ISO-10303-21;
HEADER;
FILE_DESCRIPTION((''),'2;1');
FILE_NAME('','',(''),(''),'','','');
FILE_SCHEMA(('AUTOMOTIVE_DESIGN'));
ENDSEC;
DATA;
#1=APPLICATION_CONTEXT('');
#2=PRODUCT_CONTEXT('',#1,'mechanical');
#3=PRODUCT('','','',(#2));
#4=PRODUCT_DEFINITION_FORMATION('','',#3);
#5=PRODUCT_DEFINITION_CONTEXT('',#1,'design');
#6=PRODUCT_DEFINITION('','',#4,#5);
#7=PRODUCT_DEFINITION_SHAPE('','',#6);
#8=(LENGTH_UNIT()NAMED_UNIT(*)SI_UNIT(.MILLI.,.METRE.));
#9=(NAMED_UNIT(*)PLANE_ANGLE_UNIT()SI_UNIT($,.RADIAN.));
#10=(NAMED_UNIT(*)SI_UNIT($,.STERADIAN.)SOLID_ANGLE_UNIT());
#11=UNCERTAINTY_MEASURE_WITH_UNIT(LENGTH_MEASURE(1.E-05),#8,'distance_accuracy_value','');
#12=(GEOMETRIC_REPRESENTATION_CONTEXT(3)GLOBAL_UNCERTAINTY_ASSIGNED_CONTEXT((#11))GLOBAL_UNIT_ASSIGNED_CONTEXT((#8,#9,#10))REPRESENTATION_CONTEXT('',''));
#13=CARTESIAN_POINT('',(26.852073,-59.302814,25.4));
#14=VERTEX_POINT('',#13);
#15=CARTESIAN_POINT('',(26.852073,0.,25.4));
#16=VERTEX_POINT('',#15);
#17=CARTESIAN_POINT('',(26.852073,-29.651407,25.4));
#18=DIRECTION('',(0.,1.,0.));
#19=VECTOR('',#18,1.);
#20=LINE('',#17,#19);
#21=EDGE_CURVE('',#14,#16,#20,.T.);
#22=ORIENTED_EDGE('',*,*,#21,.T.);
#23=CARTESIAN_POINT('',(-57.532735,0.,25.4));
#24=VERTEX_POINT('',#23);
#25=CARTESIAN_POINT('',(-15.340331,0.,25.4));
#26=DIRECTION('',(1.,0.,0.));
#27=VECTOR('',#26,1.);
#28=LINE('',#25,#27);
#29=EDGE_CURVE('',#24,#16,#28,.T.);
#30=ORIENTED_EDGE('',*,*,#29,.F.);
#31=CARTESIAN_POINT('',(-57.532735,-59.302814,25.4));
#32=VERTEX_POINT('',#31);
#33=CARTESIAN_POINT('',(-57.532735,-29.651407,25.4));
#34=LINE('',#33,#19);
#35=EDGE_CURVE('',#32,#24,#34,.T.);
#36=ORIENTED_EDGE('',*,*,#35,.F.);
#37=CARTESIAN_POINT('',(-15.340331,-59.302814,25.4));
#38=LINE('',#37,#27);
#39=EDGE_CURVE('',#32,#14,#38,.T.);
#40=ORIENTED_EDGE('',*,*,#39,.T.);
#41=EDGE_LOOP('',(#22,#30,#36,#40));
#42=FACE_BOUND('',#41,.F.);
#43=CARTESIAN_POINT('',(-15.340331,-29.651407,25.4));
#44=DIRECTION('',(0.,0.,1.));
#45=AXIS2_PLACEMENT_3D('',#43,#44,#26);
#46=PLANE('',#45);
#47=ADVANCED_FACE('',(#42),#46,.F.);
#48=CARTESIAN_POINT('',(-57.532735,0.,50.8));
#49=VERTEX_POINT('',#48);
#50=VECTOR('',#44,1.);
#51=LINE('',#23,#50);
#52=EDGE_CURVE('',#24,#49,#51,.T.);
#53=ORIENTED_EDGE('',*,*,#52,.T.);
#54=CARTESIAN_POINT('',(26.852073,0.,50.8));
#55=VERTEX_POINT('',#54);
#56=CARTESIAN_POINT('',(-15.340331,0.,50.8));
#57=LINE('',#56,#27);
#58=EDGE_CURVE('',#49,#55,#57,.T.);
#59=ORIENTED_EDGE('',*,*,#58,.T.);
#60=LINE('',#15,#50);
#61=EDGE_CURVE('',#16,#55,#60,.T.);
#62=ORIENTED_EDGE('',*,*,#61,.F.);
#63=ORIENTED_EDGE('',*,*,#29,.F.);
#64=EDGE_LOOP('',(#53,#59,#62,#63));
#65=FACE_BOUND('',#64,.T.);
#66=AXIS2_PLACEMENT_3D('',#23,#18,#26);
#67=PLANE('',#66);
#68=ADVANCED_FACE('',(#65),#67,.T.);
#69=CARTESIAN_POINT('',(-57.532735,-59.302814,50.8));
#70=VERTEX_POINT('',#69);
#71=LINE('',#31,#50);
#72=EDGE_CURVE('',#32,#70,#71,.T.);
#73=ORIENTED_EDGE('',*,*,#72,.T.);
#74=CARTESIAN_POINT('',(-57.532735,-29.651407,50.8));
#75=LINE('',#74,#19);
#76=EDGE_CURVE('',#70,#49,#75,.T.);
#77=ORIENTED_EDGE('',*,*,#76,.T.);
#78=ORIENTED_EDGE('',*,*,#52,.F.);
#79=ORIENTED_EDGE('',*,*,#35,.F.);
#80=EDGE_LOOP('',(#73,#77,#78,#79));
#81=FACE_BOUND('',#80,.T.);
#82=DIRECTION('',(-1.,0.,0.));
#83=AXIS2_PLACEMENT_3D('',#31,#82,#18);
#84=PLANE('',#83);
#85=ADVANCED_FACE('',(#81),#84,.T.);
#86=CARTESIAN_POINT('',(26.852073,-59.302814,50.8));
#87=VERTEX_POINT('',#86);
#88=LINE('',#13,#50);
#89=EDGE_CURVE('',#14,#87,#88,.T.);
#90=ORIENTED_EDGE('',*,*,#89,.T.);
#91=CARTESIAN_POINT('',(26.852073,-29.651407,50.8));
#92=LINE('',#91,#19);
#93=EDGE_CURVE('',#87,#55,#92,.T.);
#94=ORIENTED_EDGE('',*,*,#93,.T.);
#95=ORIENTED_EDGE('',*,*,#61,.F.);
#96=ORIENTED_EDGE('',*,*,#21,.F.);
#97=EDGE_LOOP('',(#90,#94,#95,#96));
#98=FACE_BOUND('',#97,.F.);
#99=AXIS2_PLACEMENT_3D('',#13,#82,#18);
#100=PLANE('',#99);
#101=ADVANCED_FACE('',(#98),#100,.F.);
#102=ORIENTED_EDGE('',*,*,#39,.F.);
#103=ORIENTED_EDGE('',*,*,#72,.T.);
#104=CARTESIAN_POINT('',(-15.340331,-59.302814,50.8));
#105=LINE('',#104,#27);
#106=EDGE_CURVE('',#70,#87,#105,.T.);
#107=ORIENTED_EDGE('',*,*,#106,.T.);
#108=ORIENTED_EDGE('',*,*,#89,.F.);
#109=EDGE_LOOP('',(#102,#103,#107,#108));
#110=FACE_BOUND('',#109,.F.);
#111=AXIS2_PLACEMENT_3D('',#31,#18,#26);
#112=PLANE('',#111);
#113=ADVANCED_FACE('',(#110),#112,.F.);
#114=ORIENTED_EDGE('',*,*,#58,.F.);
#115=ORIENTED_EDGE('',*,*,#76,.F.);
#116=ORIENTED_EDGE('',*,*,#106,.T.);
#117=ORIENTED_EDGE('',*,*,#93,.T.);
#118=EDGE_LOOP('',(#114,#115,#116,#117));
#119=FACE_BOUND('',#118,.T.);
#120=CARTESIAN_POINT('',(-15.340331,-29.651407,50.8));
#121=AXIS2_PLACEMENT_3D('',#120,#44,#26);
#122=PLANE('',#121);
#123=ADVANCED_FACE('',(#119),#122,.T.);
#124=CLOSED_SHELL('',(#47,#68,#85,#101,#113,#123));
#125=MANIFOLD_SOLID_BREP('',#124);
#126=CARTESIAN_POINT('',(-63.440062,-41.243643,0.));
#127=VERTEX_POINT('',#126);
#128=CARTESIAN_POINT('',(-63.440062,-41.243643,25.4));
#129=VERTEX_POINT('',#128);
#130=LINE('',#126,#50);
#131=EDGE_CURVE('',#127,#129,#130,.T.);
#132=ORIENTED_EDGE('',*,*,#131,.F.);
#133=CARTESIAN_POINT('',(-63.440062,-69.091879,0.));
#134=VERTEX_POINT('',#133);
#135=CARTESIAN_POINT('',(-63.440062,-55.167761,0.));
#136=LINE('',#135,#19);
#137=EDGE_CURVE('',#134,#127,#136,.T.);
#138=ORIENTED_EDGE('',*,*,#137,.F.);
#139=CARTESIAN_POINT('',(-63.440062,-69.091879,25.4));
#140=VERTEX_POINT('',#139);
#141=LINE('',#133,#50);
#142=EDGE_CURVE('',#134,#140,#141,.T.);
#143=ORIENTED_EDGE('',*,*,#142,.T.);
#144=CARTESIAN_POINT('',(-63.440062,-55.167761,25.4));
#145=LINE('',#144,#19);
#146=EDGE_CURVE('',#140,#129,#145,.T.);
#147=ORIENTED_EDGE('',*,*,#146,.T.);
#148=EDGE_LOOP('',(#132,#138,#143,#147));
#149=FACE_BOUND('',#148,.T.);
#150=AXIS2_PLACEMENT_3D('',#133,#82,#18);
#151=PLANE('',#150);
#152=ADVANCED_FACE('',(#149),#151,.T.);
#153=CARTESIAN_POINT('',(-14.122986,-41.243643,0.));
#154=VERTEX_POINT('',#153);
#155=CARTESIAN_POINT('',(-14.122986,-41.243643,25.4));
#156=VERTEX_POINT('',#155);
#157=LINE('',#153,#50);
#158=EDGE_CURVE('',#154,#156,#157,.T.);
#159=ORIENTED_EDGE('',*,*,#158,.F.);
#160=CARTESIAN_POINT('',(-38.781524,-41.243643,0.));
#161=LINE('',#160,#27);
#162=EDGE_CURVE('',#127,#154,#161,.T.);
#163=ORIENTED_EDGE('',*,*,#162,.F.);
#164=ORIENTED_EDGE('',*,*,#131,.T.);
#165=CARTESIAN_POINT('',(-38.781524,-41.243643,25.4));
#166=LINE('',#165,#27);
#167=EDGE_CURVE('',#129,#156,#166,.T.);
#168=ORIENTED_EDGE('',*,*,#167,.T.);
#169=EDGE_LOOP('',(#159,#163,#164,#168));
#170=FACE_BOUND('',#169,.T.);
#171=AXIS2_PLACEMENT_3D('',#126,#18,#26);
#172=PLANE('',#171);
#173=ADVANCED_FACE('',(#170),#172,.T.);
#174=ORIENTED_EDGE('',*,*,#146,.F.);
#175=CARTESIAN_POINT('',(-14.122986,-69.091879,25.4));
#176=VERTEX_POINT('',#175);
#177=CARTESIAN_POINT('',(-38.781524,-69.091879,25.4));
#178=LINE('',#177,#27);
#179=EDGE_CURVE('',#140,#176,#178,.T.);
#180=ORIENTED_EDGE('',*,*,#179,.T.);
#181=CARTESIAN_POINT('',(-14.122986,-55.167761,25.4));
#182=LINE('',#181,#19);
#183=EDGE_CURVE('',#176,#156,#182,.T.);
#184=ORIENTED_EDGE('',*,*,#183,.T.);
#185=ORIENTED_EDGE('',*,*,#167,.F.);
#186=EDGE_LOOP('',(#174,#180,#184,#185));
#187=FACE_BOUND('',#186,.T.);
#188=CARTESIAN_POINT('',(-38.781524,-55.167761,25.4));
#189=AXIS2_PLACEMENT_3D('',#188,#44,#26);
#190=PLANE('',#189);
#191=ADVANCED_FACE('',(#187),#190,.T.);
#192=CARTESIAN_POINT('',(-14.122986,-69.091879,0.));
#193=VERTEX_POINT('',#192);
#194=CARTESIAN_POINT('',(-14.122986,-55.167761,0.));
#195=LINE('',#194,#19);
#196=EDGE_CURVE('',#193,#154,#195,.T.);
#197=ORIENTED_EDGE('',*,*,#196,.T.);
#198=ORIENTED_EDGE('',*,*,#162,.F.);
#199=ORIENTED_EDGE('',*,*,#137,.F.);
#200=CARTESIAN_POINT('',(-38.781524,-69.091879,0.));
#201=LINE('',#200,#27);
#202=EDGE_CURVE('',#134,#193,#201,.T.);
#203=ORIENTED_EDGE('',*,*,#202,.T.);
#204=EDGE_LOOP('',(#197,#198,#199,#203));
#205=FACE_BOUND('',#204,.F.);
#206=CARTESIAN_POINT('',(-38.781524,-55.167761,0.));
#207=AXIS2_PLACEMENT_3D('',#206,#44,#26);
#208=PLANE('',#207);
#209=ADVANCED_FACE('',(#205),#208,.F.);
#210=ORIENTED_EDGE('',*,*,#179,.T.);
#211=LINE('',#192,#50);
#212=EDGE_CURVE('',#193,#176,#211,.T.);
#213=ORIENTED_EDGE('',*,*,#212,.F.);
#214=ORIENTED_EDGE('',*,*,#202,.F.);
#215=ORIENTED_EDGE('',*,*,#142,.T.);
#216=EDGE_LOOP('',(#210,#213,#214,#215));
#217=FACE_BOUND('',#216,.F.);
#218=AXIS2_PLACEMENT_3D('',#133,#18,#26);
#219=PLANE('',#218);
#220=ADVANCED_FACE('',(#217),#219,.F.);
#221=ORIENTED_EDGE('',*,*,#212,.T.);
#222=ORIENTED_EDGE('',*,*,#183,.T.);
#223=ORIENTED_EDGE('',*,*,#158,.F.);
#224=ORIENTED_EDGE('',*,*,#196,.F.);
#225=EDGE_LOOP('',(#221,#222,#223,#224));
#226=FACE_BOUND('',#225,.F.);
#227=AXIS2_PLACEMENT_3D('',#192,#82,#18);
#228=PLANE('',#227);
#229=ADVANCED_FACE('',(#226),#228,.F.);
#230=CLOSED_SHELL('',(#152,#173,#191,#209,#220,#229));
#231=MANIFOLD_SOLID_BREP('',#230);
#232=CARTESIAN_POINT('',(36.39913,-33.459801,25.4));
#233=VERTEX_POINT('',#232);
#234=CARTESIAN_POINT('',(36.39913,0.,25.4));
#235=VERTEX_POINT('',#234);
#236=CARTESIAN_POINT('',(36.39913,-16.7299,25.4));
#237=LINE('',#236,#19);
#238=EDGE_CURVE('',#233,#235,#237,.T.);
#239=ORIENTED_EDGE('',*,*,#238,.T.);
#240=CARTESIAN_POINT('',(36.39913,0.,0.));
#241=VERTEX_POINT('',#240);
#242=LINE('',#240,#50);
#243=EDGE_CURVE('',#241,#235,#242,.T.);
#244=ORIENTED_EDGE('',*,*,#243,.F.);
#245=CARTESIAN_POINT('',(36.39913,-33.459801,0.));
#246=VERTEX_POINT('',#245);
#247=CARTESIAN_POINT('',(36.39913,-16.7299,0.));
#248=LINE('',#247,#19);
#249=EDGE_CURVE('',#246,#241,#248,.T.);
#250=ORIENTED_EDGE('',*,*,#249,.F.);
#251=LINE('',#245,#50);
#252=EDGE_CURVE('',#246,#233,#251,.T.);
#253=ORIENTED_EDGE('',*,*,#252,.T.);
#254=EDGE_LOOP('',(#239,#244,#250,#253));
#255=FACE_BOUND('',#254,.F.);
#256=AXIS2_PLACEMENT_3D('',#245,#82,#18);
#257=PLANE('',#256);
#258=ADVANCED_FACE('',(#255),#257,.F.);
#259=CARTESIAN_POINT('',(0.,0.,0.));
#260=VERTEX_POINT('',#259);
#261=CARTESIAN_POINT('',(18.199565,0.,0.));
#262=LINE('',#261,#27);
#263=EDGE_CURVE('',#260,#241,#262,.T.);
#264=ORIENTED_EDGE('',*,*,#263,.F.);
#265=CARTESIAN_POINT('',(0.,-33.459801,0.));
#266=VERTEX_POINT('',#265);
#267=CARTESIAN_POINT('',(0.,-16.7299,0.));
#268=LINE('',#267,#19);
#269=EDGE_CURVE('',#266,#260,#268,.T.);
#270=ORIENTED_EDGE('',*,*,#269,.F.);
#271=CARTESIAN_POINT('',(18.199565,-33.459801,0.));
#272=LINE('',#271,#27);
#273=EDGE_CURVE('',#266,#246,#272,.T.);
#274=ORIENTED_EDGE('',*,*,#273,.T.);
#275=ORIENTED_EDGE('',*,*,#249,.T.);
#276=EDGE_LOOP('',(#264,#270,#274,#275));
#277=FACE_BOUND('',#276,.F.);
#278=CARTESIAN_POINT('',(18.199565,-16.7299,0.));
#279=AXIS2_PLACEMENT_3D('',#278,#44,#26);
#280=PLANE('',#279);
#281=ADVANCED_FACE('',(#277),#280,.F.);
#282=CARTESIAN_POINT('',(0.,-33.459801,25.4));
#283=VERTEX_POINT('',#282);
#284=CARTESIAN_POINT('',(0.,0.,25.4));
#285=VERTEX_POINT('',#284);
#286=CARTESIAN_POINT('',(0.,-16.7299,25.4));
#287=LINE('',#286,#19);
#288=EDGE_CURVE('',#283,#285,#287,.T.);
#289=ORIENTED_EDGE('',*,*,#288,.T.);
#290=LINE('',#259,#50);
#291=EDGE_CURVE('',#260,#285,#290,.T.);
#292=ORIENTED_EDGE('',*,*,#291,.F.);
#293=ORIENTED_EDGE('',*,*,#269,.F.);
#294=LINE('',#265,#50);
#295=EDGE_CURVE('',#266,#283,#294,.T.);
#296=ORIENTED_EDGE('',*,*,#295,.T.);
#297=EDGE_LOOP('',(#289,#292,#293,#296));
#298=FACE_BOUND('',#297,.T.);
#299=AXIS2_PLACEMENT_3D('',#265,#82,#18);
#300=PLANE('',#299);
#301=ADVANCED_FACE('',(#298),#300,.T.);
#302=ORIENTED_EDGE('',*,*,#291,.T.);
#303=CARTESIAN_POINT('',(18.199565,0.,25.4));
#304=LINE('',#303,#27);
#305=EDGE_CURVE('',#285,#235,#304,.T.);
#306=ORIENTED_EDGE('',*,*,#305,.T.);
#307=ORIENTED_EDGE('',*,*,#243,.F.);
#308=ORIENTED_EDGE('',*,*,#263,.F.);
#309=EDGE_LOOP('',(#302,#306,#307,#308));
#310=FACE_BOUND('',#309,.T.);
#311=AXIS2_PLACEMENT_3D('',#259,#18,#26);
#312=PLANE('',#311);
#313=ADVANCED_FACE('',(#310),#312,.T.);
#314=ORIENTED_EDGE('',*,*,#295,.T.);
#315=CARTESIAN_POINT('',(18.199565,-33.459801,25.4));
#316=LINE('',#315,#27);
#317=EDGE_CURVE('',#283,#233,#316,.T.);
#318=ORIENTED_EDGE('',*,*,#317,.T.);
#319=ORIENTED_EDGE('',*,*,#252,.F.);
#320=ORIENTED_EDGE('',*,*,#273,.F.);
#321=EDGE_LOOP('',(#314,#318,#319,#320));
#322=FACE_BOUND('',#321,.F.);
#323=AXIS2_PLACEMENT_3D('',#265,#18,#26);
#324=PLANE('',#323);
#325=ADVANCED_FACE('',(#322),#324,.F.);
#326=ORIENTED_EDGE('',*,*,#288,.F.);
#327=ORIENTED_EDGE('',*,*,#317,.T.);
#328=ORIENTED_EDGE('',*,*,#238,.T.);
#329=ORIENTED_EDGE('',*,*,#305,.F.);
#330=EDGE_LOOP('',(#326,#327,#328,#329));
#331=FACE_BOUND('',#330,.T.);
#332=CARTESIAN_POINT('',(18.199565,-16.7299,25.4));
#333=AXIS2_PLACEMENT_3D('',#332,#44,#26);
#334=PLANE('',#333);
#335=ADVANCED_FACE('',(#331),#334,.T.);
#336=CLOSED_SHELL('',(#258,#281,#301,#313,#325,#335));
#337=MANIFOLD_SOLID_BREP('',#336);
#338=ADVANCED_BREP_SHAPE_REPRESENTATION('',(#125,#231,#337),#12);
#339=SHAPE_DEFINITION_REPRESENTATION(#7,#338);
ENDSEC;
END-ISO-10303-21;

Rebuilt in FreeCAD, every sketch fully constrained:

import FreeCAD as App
import Part
import Sketcher

V = App.Vector
Q = App.Units.Quantity

doc = App.newDocument("Part")
params = doc.addObject("Spreadsheet::Sheet", "Params")
for row, (alias, value) in enumerate([
    ("pad1_length", "1 in"),
    ("pad2_length", "1 in"),
    ("pad3_length", "1 in"),
], start=1):
    params.set(f"A{row}", alias)
    params.set(f"B{row}", "=" + value)
    params.setAlias(f"B{row}", alias)

body = doc.addObject("PartDesign::Body", "Body")

# Sketch on XY plane
sketch1 = doc.addObject("Sketcher::SketchObject", "Sketch")
body.addObject(sketch1)
sketch1.AttachmentSupport = (doc.XY_Plane, [""])
sketch1.MapMode = "FlatFace"
sketch1.addGeometry([
    Part.LineSegment(V(0, 0, 0), V(0, -33, 0)),
    Part.LineSegment(V(0, -33, 0), V(36, -33, 0)),
    Part.LineSegment(V(36, -33, 0), V(36, 0, 0)),
    Part.LineSegment(V(36, 0, 0), V(0, 0, 0)),
], False)
sketch1.addConstraint([
    Sketcher.Constraint("Coincident", 0, 2, 1, 1),
    Sketcher.Constraint("Coincident", 1, 2, 2, 1),
    Sketcher.Constraint("Coincident", 2, 2, 3, 1),
    Sketcher.Constraint("Coincident", 3, 2, 0, 1),
    Sketcher.Constraint("Vertical", 0),
    Sketcher.Constraint("Horizontal", 1),
    Sketcher.Constraint("Vertical", 2),
    Sketcher.Constraint("Horizontal", 3),
    Sketcher.Constraint("Coincident", 3, 2, -1, 1),
    Sketcher.Constraint("DistanceY", 0, 2, 0, 1, Q("33.459801 mm")),
    Sketcher.Constraint("DistanceX", 1, 1, 1, 2, Q("36.39913 mm")),
])
pad1 = doc.addObject("PartDesign::Pad", "Pad")
body.addObject(pad1)
pad1.Profile = sketch1
pad1.setExpression("Length", "Params.pad1_length")
body2 = doc.addObject("PartDesign::Body", "Body001")

# Sketch on XY plane
sketch2 = doc.addObject("Sketcher::SketchObject", "Sketch001")
body2.addObject(sketch2)
sketch2.AttachmentSupport = (doc.getObject("XY_Plane001"), [""])
sketch2.MapMode = "FlatFace"
sketch2.addGeometry([
    Part.LineSegment(V(-63, -41, 0), V(-63, -69, 0)),
    Part.LineSegment(V(-63, -69, 0), V(-14, -69, 0)),
    Part.LineSegment(V(-14, -69, 0), V(-14, -41, 0)),
    Part.LineSegment(V(-14, -41, 0), V(-63, -41, 0)),
], False)
sketch2.addConstraint([
    Sketcher.Constraint("Coincident", 0, 2, 1, 1),
    Sketcher.Constraint("Coincident", 1, 2, 2, 1),
    Sketcher.Constraint("Coincident", 2, 2, 3, 1),
    Sketcher.Constraint("Coincident", 3, 2, 0, 1),
    Sketcher.Constraint("Vertical", 0),
    Sketcher.Constraint("Horizontal", 1),
    Sketcher.Constraint("Vertical", 2),
    Sketcher.Constraint("Horizontal", 3),
    Sketcher.Constraint("DistanceX", 1, 1, 1, 2, Q("49.317076 mm")),
    Sketcher.Constraint("DistanceY", 0, 2, 0, 1, Q("27.848236 mm")),
    Sketcher.Constraint("DistanceX", 0, 2, -1, 1, Q("63.440062 mm")),
    Sketcher.Constraint("DistanceY", 0, 2, -1, 1, Q("69.091879 mm")),
])
pad2 = doc.addObject("PartDesign::Pad", "Pad001")
body2.addObject(pad2)
pad2.Profile = sketch2
pad2.setExpression("Length", "Params.pad2_length")
body3 = doc.addObject("PartDesign::Body", "Body002")

# Sketch on XY plane
sketch3 = doc.addObject("Sketcher::SketchObject", "Sketch002")
body3.addObject(sketch3)
sketch3.AttachmentSupport = (doc.getObject("XY_Plane002"), [""])
sketch3.MapMode = "FlatFace"
sketch3.AttachmentOffset = App.Placement(V(0, 0, 1 * 25.4), App.Rotation())
sketch3.addGeometry([
    Part.LineSegment(V(-58, 0, 0), V(-58, -59, 0)),
    Part.LineSegment(V(-58, -59, 0), V(27, -59, 0)),
    Part.LineSegment(V(27, -59, 0), V(27, 0, 0)),
    Part.LineSegment(V(27, 0, 0), V(-58, 0, 0)),
], False)
sketch3.addConstraint([
    Sketcher.Constraint("Coincident", 0, 2, 1, 1),
    Sketcher.Constraint("Coincident", 1, 2, 2, 1),
    Sketcher.Constraint("Coincident", 2, 2, 3, 1),
    Sketcher.Constraint("Coincident", 3, 2, 0, 1),
    Sketcher.Constraint("Vertical", 0),
    Sketcher.Constraint("Horizontal", 1),
    Sketcher.Constraint("Vertical", 2),
    Sketcher.Constraint("Horizontal", 3),
    Sketcher.Constraint("PointOnObject", 2, 2, -1),
    Sketcher.Constraint("DistanceX", 1, 1, 1, 2, Q("84.384808 mm")),
    Sketcher.Constraint("DistanceY", 0, 2, 0, 1, Q("59.302814 mm")),
    Sketcher.Constraint("DistanceX", 0, 2, -1, 1, Q("57.532735 mm")),
])
pad3 = doc.addObject("PartDesign::Pad", "Pad002")
body3.addObject(pad3)
pad3.Profile = sketch3
pad3.setExpression("Length", "Params.pad3_length")

doc.recompute()
